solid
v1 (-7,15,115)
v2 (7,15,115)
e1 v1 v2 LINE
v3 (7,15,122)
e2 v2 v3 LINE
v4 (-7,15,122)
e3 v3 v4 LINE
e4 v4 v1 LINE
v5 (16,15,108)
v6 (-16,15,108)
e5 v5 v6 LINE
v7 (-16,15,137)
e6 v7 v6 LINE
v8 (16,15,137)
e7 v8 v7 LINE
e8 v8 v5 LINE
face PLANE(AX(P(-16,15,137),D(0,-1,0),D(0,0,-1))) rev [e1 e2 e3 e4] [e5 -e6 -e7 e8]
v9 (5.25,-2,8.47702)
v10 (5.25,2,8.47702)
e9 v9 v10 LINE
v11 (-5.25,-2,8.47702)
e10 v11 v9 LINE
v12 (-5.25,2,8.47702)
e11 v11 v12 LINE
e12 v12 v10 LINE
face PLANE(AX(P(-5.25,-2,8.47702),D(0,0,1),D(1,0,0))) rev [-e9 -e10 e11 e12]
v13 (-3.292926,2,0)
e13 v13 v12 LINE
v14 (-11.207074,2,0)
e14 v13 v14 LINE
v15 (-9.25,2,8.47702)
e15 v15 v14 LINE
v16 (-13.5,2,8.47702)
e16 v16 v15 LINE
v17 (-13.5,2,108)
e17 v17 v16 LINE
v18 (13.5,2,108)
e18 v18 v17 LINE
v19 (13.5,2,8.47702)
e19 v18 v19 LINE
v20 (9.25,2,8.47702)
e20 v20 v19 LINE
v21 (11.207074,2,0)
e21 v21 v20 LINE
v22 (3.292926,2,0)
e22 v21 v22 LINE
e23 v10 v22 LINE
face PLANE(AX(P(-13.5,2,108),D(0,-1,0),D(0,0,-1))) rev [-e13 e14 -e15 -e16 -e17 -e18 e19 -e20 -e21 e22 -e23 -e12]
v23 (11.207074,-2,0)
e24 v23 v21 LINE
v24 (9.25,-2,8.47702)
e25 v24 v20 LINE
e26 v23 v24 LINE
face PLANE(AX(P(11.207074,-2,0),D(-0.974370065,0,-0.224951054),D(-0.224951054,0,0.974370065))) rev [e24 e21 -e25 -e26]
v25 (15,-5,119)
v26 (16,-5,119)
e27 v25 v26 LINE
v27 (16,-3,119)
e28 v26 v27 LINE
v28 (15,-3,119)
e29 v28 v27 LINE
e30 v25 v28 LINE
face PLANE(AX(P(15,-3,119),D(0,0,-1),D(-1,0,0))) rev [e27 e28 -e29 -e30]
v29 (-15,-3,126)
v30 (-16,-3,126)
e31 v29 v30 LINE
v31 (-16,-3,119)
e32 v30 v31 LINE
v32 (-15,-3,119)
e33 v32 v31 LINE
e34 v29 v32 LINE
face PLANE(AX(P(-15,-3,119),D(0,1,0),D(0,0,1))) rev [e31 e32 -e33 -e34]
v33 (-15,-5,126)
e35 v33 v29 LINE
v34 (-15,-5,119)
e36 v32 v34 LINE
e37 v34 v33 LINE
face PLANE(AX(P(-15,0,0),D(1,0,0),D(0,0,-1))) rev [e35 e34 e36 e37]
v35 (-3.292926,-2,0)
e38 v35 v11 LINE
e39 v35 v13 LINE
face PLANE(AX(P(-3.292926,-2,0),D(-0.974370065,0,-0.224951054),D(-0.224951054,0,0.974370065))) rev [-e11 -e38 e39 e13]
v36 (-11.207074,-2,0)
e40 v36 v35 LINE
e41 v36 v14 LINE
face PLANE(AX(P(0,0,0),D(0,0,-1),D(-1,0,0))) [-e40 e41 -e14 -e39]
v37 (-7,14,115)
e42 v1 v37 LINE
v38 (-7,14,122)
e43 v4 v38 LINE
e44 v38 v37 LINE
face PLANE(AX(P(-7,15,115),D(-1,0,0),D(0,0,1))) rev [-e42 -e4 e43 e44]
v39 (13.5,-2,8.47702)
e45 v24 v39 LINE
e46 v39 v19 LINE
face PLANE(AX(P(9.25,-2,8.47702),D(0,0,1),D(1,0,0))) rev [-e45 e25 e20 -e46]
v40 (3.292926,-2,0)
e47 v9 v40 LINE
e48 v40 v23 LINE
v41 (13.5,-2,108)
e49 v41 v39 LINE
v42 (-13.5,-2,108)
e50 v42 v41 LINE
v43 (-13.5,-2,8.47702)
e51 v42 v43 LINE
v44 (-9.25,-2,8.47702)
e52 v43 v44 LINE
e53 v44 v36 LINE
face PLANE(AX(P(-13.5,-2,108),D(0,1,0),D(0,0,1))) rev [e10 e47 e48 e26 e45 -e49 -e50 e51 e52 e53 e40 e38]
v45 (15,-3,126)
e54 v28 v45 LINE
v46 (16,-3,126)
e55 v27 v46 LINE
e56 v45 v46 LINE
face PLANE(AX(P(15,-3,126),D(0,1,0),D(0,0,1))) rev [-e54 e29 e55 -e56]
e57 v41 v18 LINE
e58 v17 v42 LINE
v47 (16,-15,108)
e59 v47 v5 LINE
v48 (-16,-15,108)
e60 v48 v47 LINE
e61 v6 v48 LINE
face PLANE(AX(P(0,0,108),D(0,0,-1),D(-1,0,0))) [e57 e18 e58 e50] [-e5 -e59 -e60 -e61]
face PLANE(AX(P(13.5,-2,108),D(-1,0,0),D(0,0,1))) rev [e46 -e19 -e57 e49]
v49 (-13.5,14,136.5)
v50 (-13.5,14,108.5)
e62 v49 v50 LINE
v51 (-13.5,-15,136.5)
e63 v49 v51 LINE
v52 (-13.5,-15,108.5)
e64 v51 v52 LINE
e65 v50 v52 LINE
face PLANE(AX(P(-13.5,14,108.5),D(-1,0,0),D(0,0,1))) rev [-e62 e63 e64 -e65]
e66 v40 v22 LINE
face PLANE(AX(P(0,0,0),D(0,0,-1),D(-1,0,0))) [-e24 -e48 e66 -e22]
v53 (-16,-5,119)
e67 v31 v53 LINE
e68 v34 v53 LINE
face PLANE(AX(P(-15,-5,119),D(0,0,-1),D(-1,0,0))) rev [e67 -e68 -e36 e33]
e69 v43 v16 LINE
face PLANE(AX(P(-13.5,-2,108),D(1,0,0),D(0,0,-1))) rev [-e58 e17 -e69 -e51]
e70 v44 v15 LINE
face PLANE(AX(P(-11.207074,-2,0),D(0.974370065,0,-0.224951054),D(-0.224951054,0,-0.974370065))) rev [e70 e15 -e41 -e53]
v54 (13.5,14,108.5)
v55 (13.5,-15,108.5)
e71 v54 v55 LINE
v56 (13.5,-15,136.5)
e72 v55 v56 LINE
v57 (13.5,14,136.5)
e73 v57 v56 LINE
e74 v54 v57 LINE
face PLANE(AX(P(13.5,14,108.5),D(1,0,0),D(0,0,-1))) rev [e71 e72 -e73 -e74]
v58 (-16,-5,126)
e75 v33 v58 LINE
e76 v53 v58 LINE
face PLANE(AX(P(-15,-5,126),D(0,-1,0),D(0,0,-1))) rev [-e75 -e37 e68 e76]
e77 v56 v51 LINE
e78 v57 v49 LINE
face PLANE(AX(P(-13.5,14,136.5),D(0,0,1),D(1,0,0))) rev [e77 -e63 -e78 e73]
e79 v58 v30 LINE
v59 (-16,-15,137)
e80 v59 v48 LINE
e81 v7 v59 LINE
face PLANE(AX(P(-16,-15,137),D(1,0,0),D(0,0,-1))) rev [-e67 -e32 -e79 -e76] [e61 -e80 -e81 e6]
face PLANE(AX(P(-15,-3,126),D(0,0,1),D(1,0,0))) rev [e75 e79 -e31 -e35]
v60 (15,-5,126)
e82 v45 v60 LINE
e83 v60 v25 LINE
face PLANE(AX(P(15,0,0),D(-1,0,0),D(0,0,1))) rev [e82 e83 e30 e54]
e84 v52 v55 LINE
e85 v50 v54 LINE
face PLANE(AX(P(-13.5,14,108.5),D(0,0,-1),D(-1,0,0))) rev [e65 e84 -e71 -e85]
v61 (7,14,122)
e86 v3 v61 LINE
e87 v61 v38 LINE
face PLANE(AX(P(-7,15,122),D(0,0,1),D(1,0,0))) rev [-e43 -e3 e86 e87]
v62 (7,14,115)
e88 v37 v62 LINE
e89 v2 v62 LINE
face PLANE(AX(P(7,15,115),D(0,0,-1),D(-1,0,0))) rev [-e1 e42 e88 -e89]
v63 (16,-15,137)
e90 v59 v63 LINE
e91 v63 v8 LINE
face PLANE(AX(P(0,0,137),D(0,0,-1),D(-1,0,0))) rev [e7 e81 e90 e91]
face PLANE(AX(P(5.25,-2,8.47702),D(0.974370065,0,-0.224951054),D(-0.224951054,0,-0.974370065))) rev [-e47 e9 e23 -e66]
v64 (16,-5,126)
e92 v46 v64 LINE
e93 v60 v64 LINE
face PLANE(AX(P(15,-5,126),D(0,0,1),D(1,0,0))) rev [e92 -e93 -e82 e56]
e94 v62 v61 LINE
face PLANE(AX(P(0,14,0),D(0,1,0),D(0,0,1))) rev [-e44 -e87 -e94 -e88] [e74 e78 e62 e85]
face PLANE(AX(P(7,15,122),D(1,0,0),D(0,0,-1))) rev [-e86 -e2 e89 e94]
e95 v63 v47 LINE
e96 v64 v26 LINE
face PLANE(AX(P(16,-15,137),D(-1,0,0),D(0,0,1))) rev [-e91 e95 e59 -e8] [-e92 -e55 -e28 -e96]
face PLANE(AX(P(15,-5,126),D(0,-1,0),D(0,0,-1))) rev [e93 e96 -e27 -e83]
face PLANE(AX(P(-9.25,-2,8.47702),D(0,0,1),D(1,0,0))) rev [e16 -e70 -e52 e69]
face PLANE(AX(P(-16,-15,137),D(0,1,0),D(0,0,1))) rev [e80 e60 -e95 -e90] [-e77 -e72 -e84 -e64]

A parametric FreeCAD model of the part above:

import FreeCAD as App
import Part
import Sketcher

V = App.Vector
Q = App.Units.Quantity


def add_polygon(sketch, points):
    """Adds a closed chain of lines whose ends are joined by coincident constraints."""
    first, n = sketch.GeometryCount, len(points)
    for a, b in zip(points, points[1:] + points[:1]):
        sketch.addGeometry(Part.LineSegment(App.Vector(*a, 0), App.Vector(*b, 0)), False)
    for i in range(n):
        sketch.addConstraint(Sketcher.Constraint("Coincident", first + i, 2, first + (i + 1) % n, 1))

doc = App.newDocument("Part")
params = doc.addObject("Spreadsheet::Sheet", "Params")
for row, (alias, value) in enumerate([
    ("sketch1_width", "27 mm"),
    ("sketch1_height", "4 mm"),
    ("pad1_length", "108 mm"),
    ("sketch2_width", "10.5 mm"),
    ("sketch2_length", "8.7 mm"),
    ("sketch2_width2", "4.25 mm"),
    ("sketch3_width", "32 mm"),
    ("sketch3_height", "30 mm"),
    ("pad2_length", "29 mm"),
    ("sketch4_width", "27 mm"),
    ("sketch4_height", "28 mm"),
    ("pocket2_length", "29 mm"),
    ("sketch5_width", "2 mm"),
    ("sketch5_height", "7 mm"),
    ("pocket3_length", "1 mm"),
    ("sketch6_width", "2 mm"),
    ("sketch6_height", "7 mm"),
    ("pocket4_length", "1 mm"),
    ("sketch7_width", "14 mm"),
    ("sketch7_height", "7 mm"),
], start=1):
    params.set(f"A{row}", alias)
    params.set(f"B{row}", "=" + value)
    params.setAlias(f"B{row}", alias)

body = doc.addObject("PartDesign::Body", "Body")

# Sketch on XY plane
sketch1 = body.newObject("Sketcher::SketchObject", "Sketch")
sketch1.AttachmentSupport = (doc.getObject("XY_Plane"), [""])
sketch1.MapMode = "FlatFace"
add_polygon(sketch1, [(-13.5, 2), (-13.5, -2), (13.5, -2), (13.5, 2)])  # lines 0-3
sketch1.addConstraint([
    Sketcher.Constraint("Vertical", 0),
    Sketcher.Constraint("Horizontal", 1),
    Sketcher.Constraint("Vertical", 2),
    Sketcher.Constraint("Horizontal", 3),
    Sketcher.Constraint("Symmetric", 0, 2, 2, 2, -1, 1),
    Sketcher.Constraint("DistanceX", 1, 1, 1, 2, 27.0),
    Sketcher.Constraint("DistanceY", 0, 2, 0, 1, 4.0),
])
sketch1.setExpression("Constraints[9]", "Params.sketch1_width")
sketch1.setExpression("Constraints[10]", "Params.sketch1_height")
pad1 = body.newObject("PartDesign::Pad", "Pad")
pad1.Profile = sketch1
pad1.setExpression("Length", "Params.pad1_length")

# Sketch on XZ plane
sketch2 = body.newObject("Sketcher::SketchObject", "Sketch001")
sketch2.AttachmentSupport = (doc.getObject("XZ_Plane"), [""])
sketch2.MapMode = "FlatFace"
sketch2.AttachmentOffset = App.Placement(V(0, 0, -2), App.Rotation())
add_polygon(sketch2, [(-11.2, 0), (-13.5, 0), (-13.5, 8.5), (-9.2, 8.5)])  # lines 0-3
add_polygon(sketch2, [(-3.3, 0), (-5.2, 8.5), (5.2, 8.5), (3.3, 0)])  # lines 4-7
add_polygon(sketch2, [(11.2, 0), (9.2, 8.5), (13.5, 8.5), (13.5, 0)])  # lines 8-11
sketch2.addConstraint([
    Sketcher.Constraint("Horizontal", 0),
    Sketcher.Constraint("Vertical", 1),
    Sketcher.Constraint("Horizontal", 2),
    Sketcher.Constraint("Horizontal", 5),
    Sketcher.Constraint("Horizontal", 7),
    Sketcher.Constraint("Horizontal", 9),
    Sketcher.Constraint("Vertical", 10),
    Sketcher.Constraint("Horizontal", 11),
    Sketcher.Constraint("Symmetric", 6, 2, 7, 2, -1, 1),
    Sketcher.Constraint("Symmetric", 0, 2, 10, 2, -1, 1),
    Sketcher.Constraint("Symmetric", 2, 2, 8, 2, -2),
    Sketcher.Constraint("Symmetric", 3, 2, 11, 2, -2),
    Sketcher.Constraint("Parallel", 3, 6),
    Sketcher.Constraint("Parallel", 4, 8),
    Sketcher.Constraint("Horizontal", 2, 2, 4, 2),
    Sketcher.Constraint("Angle", 3, Q("-103 deg")),
    Sketcher.Constraint("DistanceX", 5, 1, 5, 2, 10.5),
    Sketcher.Constraint("DistanceX", 2, 2, 4, 2, 4.0),
    Sketcher.Constraint("Distance", 3, 8.7),
    Sketcher.Constraint("DistanceX", 2, 1, 2, 2, 4.25),
])
sketch2.setExpression("Constraints[28]", "Params.sketch2_width")
sketch2.setExpression("Constraints[30]", "Params.sketch2_length")
sketch2.setExpression("Constraints[31]", "Params.sketch2_width2")
pocket1 = body.newObject("PartDesign::Pocket", "Pocket")
pocket1.Profile = sketch2
pocket1.Type = "ThroughAll"
pocket1.Reversed = True

# Sketch on XY plane
sketch3 = body.newObject("Sketcher::SketchObject", "Sketch002")
sketch3.AttachmentSupport = (doc.getObject("XY_Plane"), [""])
sketch3.MapMode = "FlatFace"
sketch3.AttachmentOffset = App.Placement(V(0, 0, 108), App.Rotation())
add_polygon(sketch3, [(-16, 15), (-16, -15), (16, -15), (16, 15)])  # lines 0-3
sketch3.addConstraint([
    Sketcher.Constraint("Vertical", 0),
    Sketcher.Constraint("Horizontal", 1),
    Sketcher.Constraint("Vertical", 2),
    Sketcher.Constraint("Horizontal", 3),
    Sketcher.Constraint("Symmetric", 0, 2, 2, 2, -1, 1),
    Sketcher.Constraint("DistanceX", 1, 1, 1, 2, 32.0),
    Sketcher.Constraint("DistanceY", 0, 2, 0, 1, 30.0),
])
sketch3.setExpression("Constraints[9]", "Params.sketch3_width")
sketch3.setExpression("Constraints[10]", "Params.sketch3_height")
pad2 = body.newObject("PartDesign::Pad", "Pad001")
pad2.Profile = sketch3
pad2.setExpression("Length", "Params.pad2_length")

# Sketch on XZ plane
sketch4 = body.newObject("Sketcher::SketchObject", "Sketch003")
sketch4.AttachmentSupport = (doc.getObject("XZ_Plane"), [""])
sketch4.MapMode = "FlatFace"
sketch4.AttachmentOffset = App.Placement(V(0, 0, 15), App.Rotation())
add_polygon(sketch4, [(-14, 136), (-14, 108), (14, 108), (14, 136)])  # lines 0-3
sketch4.addConstraint([
    Sketcher.Constraint("Vertical", 0),
    Sketcher.Constraint("Horizontal", 1),
    Sketcher.Constraint("Vertical", 2),
    Sketcher.Constraint("Horizontal", 3),
    Sketcher.Constraint("DistanceX", 1, 1, 1, 2, 27.0),
    Sketcher.Constraint("DistanceY", 0, 2, 0, 1, 28.0),
    Sketcher.Constraint("DistanceX", 0, 2, -1, 1, 13.5),
    Sketcher.Constraint("DistanceY", -1, 1, 0, 2, 108.5),
])
sketch4.setExpression("Constraints[8]", "Params.sketch4_width")
sketch4.setExpression("Constraints[9]", "Params.sketch4_height")
pocket2 = body.newObject("PartDesign::Pocket", "Pocket001")
pocket2.Profile = sketch4
pocket2.setExpression("Length", "Params.pocket2_length")

# Sketch on YZ plane
sketch5 = body.newObject("Sketcher::SketchObject", "Sketch004")
sketch5.AttachmentSupport = (doc.getObject("YZ_Plane"), [""])
sketch5.MapMode = "FlatFace"
sketch5.AttachmentOffset = App.Placement(V(0, 0, 16), App.Rotation())
add_polygon(sketch5, [(-3, 126), (-5, 126), (-5, 119), (-3, 119)])  # lines 0-3
sketch5.addConstraint([
    Sketcher.Constraint("Horizontal", 0),
    Sketcher.Constraint("Vertical", 1),
    Sketcher.Constraint("Horizontal", 2),
    Sketcher.Constraint("Vertical", 3),
    Sketcher.Constraint("DistanceX", 0, 2, 0, 1, 2.0),
    Sketcher.Constraint("DistanceY", 1, 2, 1, 1, 7.0),
    Sketcher.Constraint("DistanceX", 0, 2, -1, 1, 5.0),
    Sketcher.Constraint("DistanceY", -1, 1, 0, 2, 126.0),
])
sketch5.setExpression("Constraints[8]", "Params.sketch5_width")
sketch5.setExpression("Constraints[9]", "Params.sketch5_height")
pocket3 = body.newObject("PartDesign::Pocket", "Pocket002")
pocket3.Profile = sketch5
pocket3.setExpression("Length", "Params.pocket3_length")

# Sketch on YZ plane
sketch6 = body.newObject("Sketcher::SketchObject", "Sketch005")
sketch6.AttachmentSupport = (doc.getObject("YZ_Plane"), [""])
sketch6.MapMode = "FlatFace"
sketch6.AttachmentOffset = App.Placement(V(0, 0, -16), App.Rotation())
add_polygon(sketch6, [(-3, 119), (-5, 119), (-5, 126), (-3, 126)])  # lines 0-3
sketch6.addConstraint([
    Sketcher.Constraint("Horizontal", 0),
    Sketcher.Constraint("Vertical", 1),
    Sketcher.Constraint("Horizontal", 2),
    Sketcher.Constraint("Vertical", 3),
    Sketcher.Constraint("DistanceX", 0, 2, 0, 1, 2.0),
    Sketcher.Constraint("DistanceY", 1, 1, 1, 2, 7.0),
    Sketcher.Constraint("DistanceX", 0, 2, -1, 1, 5.0),
    Sketcher.Constraint("DistanceY", -1, 1, 0, 2, 119.0),
])
sketch6.setExpression("Constraints[8]", "Params.sketch6_width")
sketch6.setExpression("Constraints[9]", "Params.sketch6_height")
pocket4 = body.newObject("PartDesign::Pocket", "Pocket003")
pocket4.Profile = sketch6
pocket4.setExpression("Length", "Params.pocket4_length")
pocket4.Reversed = True

# Sketch on XZ plane
sketch7 = body.newObject("Sketcher::SketchObject", "Sketch006")
sketch7.AttachmentSupport = (doc.getObject("XZ_Plane"), [""])
sketch7.MapMode = "FlatFace"
sketch7.AttachmentOffset = App.Placement(V(0, 0, -14), App.Rotation())
add_polygon(sketch7, [(-7, 122), (-7, 115), (7, 115), (7, 122)])  # lines 0-3
sketch7.addConstraint([
    Sketcher.Constraint("Vertical", 0),
    Sketcher.Constraint("Horizontal", 1),
    Sketcher.Constraint("Vertical", 2),
    Sketcher.Constraint("Horizontal", 3),
    Sketcher.Constraint("DistanceX", 1, 1, 1, 2, 14.0),
    Sketcher.Constraint("DistanceY", 0, 2, 0, 1, 7.0),
    Sketcher.Constraint("DistanceX", 0, 2, -1, 1, 7.0),
    Sketcher.Constraint("DistanceY", -1, 1, 0, 2, 115.0),
])
sketch7.setExpression("Constraints[8]", "Params.sketch7_width")
sketch7.setExpression("Constraints[9]", "Params.sketch7_height")
pocket5 = body.newObject("PartDesign::Pocket", "Pocket004")
pocket5.Profile = sketch7
pocket5.Type = "ThroughAll"

doc.recompute()
